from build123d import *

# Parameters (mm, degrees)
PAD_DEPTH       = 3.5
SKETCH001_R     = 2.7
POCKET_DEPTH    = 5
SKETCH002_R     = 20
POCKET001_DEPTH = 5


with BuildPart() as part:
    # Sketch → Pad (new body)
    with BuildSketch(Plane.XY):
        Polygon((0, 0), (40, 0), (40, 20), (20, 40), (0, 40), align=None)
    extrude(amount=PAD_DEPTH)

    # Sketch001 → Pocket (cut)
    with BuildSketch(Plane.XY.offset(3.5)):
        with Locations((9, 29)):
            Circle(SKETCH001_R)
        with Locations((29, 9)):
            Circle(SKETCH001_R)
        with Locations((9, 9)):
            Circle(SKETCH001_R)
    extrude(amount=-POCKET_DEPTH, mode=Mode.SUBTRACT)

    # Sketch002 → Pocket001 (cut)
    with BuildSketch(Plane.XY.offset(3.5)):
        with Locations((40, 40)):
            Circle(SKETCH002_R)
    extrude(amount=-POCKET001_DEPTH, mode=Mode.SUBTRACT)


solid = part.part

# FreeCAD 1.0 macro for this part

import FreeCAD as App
import Part
import Sketcher

V = App.Vector

doc = App.newDocument("Part")
params = doc.addObject("Spreadsheet::Sheet", "Params")
for row, (alias, value) in enumerate([
    ("sketch1_width", "40 mm"),
    ("sketch1_width2", "20 mm"),
    ("pad1_length", "3.5 mm"),
    ("sketch2_diameter", "5.4 mm"),
    ("pocket1_length", "5 mm"),
    ("sketch3_diameter", "40 mm"),
    ("pocket2_length", "5 mm"),
], start=1):
    params.set(f"A{row}", alias)
    params.set(f"B{row}", "=" + value)
    params.setAlias(f"B{row}", alias)

body = doc.addObject("PartDesign::Body", "Body")

sketch1 = doc.addObject("Sketcher::SketchObject", "Sketch")
body.addObject(sketch1)
sketch1.AttachmentSupport = (doc.XY_Plane, [""])
sketch1.MapMode = "FlatFace"
sketch1.addGeometry(Part.LineSegment(V(0, 0, 0), V(40, 0, 0)), False)
sketch1.addGeometry(Part.LineSegment(V(40, 0, 0), V(40, 20, 0)), False)
sketch1.addGeometry(Part.LineSegment(V(40, 20, 0), V(20, 40, 0)), False)
sketch1.addGeometry(Part.LineSegment(V(20, 40, 0), V(0, 40, 0)), False)
sketch1.addGeometry(Part.LineSegment(V(0, 40, 0), V(0, 0, 0)), False)
sketch1.addConstraint(Sketcher.Constraint("Coincident", 0, 2, 1, 1))
sketch1.addConstraint(Sketcher.Constraint("Coincident", 1, 2, 2, 1))
sketch1.addConstraint(Sketcher.Constraint("Coincident", 2, 2, 3, 1))
sketch1.addConstraint(Sketcher.Constraint("Coincident", 3, 2, 4, 1))
sketch1.addConstraint(Sketcher.Constraint("Coincident", 4, 2, 0, 1))
sketch1.addConstraint(Sketcher.Constraint("Horizontal", 0))
sketch1.addConstraint(Sketcher.Constraint("Vertical", 1))
sketch1.addConstraint(Sketcher.Constraint("Horizontal", 3))
sketch1.addConstraint(Sketcher.Constraint("Vertical", 4))
sketch1.addConstraint(Sketcher.Constraint("Coincident", 4, 2, -1, 1))
sketch1.addConstraint(Sketcher.Constraint("Equal", 3, 1))
sketch1.addConstraint(Sketcher.Constraint("Equal", 0, 4))
sketch1.addConstraint(Sketcher.Constraint("DistanceX", 0, 1, 0, 2, 40.0))
sketch1.addConstraint(Sketcher.Constraint("DistanceX", 3, 2, 3, 1, 20.0))
sketch1.setExpression("Constraints[12]", "Params.sketch1_width")
sketch1.setExpression("Constraints[13]", "Params.sketch1_width2")
pad1 = doc.addObject("PartDesign::Pad", "Pad")
body.addObject(pad1)
pad1.Profile = sketch1
pad1.setExpression("Length", "Params.pad1_length")

sketch2 = doc.addObject("Sketcher::SketchObject", "Sketch001")
body.addObject(sketch2)
sketch2.AttachmentSupport = (doc.XY_Plane, [""])
sketch2.MapMode = "FlatFace"
sketch2.AttachmentOffset = App.Placement(V(0, 0, 3.5), App.Rotation())
sketch2.addGeometry(Part.Circle(V(9, 29, 0), V(0, 0, 1), 2.7), False)
sketch2.addGeometry(Part.Circle(V(29, 9, 0), V(0, 0, 1), 2.7), False)
sketch2.addGeometry(Part.Circle(V(9, 9, 0), V(0, 0, 1), 2.7), False)
sketch2.addConstraint(Sketcher.Constraint("Equal", 0, 1))
sketch2.addConstraint(Sketcher.Constraint("Equal", 1, 2))
sketch2.addConstraint(Sketcher.Constraint("Horizontal", 1, 3, 2, 3))
sketch2.addConstraint(Sketcher.Constraint("Vertical", 0, 3, 2, 3))
sketch2.addConstraint(Sketcher.Constraint("Diameter", 0, 5.4))
sketch2.addConstraint(Sketcher.Constraint("DistanceX", -1, 1, 0, 3, 9.0))
sketch2.addConstraint(Sketcher.Constraint("DistanceY", -1, 1, 0, 3, 29.0))
sketch2.addConstraint(Sketcher.Constraint("DistanceX", -1, 1, 1, 3, 29.0))
sketch2.addConstraint(Sketcher.Constraint("DistanceY", -1, 1, 1, 3, 9.0))
sketch2.setExpression("Constraints[4]", "Params.sketch2_diameter")
pocket1 = doc.addObject("PartDesign::Pocket", "Pocket")
body.addObject(pocket1)
pocket1.Profile = sketch2
pocket1.setExpression("Length", "Params.pocket1_length")

sketch3 = doc.addObject("Sketcher::SketchObject", "Sketch002")
body.addObject(sketch3)
sketch3.AttachmentSupport = (doc.XY_Plane, [""])
sketch3.MapMode = "FlatFace"
sketch3.AttachmentOffset = App.Placement(V(0, 0, 3.5), App.Rotation())
sketch3.addGeometry(Part.Circle(V(40, 40, 0), V(0, 0, 1), 20), False)
sketch3.addConstraint(Sketcher.Constraint("Diameter", 0, 40.0))
sketch3.addConstraint(Sketcher.Constraint("DistanceX", -1, 1, 0, 3, 40.0))
sketch3.addConstraint(Sketcher.Constraint("DistanceY", -1, 1, 0, 3, 40.0))
sketch3.setExpression("Constraints[0]", "Params.sketch3_diameter")
pocket2 = doc.addObject("PartDesign::Pocket", "Pocket001")
body.addObject(pocket2)
pocket2.Profile = sketch3
pocket2.setExpression("Length", "Params.pocket2_length")

doc.recompute()
